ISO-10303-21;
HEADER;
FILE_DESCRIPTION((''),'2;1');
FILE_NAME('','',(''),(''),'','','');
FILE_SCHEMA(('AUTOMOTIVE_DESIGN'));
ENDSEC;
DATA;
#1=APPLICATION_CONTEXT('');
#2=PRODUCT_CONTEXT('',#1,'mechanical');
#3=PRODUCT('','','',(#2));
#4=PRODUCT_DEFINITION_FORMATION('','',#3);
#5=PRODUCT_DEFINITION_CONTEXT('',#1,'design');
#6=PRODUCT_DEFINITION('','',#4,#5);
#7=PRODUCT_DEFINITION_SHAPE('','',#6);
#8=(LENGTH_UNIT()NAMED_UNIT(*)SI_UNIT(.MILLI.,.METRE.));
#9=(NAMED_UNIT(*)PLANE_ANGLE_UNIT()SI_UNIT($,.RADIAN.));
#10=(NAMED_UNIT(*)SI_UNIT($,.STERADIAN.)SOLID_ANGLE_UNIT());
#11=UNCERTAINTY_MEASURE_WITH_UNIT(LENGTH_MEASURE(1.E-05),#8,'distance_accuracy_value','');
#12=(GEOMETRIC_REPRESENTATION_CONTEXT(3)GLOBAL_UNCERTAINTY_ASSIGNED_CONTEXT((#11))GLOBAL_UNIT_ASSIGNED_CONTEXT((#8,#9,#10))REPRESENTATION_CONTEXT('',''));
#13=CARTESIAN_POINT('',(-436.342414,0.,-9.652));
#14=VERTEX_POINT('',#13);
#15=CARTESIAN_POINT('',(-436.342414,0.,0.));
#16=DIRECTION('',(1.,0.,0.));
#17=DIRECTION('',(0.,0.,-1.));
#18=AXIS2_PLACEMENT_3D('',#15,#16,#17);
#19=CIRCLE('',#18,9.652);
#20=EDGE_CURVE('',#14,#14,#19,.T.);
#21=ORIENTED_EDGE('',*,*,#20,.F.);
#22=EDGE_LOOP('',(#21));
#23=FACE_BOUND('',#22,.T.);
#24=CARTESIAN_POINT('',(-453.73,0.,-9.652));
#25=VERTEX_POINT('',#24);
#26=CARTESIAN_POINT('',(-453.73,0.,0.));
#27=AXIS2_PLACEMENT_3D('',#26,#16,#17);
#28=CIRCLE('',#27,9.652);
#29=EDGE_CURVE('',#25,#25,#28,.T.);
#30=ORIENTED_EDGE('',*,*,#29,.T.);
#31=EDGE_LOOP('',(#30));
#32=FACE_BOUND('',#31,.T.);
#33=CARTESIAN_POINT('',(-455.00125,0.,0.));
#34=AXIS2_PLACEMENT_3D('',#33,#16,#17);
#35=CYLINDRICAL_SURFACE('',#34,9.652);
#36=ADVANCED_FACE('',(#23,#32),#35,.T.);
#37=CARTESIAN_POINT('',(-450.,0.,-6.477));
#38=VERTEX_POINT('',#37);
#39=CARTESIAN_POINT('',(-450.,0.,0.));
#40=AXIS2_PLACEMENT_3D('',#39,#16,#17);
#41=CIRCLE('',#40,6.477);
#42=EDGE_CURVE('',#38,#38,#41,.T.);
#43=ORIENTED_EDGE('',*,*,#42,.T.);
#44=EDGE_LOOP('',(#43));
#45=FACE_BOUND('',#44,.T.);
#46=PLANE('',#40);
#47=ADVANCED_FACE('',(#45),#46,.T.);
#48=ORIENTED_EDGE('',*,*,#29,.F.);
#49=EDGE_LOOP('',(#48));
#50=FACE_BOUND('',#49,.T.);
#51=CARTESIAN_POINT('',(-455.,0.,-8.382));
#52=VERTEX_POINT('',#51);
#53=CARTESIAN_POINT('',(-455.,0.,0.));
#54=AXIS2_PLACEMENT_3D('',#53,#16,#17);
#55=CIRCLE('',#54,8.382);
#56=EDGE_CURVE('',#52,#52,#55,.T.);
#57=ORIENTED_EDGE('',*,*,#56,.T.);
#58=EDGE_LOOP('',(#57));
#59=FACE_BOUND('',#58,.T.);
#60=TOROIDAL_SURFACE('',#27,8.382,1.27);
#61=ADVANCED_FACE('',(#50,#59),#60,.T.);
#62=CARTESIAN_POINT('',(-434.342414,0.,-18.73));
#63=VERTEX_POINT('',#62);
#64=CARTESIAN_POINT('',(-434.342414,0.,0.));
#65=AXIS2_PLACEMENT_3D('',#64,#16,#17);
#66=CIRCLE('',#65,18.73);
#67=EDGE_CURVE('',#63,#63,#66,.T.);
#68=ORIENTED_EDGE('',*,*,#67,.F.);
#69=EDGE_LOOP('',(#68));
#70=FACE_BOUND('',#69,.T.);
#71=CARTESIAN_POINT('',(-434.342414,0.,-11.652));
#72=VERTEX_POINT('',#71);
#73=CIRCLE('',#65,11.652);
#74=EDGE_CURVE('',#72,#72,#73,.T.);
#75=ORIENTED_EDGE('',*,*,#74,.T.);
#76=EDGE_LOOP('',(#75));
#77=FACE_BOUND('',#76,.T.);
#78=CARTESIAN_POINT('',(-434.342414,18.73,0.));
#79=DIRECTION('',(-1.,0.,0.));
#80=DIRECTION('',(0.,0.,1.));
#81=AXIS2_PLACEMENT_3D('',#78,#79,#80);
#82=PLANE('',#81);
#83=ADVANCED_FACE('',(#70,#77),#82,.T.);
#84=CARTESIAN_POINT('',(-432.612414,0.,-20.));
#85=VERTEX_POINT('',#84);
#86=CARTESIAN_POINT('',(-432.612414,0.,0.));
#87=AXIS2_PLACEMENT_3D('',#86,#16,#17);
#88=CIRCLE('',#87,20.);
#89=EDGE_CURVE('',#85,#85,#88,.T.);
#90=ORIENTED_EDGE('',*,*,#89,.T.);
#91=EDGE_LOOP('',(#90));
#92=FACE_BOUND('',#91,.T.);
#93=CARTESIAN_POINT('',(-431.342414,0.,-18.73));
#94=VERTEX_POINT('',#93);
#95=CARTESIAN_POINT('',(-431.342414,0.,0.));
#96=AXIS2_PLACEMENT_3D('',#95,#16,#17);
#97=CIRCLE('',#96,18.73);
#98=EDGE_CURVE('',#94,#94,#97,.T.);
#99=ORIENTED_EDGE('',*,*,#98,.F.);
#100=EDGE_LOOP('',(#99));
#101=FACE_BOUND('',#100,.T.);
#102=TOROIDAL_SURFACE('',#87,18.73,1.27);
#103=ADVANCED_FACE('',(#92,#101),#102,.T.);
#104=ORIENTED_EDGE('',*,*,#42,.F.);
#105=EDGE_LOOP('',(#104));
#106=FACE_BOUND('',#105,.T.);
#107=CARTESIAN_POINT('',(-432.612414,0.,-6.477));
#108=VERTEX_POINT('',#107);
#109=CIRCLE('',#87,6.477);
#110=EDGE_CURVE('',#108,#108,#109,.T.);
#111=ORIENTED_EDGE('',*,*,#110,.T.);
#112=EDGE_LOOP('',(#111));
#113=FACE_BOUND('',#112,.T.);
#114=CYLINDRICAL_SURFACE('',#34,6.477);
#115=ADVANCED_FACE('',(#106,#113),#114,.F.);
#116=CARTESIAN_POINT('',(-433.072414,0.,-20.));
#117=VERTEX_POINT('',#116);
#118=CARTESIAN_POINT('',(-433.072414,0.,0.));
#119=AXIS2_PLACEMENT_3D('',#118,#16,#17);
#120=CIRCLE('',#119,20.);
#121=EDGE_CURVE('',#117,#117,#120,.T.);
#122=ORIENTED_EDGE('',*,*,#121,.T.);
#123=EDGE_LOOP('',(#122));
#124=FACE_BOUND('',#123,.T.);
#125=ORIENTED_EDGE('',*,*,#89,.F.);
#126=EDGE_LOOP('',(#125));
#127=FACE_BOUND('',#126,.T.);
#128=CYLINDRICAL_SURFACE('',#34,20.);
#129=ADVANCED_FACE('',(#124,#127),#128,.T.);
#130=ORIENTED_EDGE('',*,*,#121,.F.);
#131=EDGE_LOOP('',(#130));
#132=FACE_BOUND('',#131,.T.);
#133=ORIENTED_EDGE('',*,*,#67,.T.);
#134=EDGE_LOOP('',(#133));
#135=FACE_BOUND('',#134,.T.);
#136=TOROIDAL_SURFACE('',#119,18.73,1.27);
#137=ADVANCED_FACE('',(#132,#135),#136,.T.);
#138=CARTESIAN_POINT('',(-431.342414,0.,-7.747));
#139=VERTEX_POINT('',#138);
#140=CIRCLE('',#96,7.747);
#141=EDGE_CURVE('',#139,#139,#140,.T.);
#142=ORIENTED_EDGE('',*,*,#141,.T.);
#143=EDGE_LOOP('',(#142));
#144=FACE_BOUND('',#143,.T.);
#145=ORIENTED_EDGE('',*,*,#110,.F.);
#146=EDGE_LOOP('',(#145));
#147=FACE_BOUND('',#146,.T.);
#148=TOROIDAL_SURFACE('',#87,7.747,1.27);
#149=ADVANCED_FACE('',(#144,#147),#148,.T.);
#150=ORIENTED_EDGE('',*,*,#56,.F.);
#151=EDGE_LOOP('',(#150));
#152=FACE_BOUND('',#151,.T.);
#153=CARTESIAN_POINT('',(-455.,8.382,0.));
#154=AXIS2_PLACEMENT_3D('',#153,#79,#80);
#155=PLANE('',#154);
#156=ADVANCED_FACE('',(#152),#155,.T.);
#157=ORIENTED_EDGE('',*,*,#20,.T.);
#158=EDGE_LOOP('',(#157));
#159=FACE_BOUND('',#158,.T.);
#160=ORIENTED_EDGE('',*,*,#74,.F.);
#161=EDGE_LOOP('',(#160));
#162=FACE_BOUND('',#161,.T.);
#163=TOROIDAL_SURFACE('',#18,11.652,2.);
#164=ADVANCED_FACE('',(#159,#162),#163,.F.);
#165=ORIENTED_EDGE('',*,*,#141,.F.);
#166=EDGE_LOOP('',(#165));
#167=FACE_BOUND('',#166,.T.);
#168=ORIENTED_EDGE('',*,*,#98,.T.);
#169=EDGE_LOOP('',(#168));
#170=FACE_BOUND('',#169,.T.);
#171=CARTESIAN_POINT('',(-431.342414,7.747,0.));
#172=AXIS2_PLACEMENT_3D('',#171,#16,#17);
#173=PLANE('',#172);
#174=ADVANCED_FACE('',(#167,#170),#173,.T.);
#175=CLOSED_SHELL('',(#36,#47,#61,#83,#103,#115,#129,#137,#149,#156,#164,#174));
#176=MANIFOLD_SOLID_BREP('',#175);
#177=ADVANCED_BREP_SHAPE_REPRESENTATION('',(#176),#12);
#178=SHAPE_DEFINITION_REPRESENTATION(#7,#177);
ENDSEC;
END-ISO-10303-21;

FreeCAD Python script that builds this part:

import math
import FreeCAD as App
import Part
import Sketcher
Q = App.Units.Quantity

doc = App.newDocument("Part")
body = doc.addObject("PartDesign::Body", "Body")

# Sketch on XY plane
sketch1 = body.newObject("Sketcher::SketchObject", "Sketch")
sketch1.AttachmentSupport = (doc.getObject("XY_Plane"), [""])
sketch1.MapMode = "FlatFace"
sketch1.addGeometry(Part.LineSegment(App.Vector(-455, 8.382, 0), App.Vector(-455, 0, 0)), False)
sketch1.addGeometry(Part.LineSegment(App.Vector(-455, 0, 0), App.Vector(-450, 0, 0)), False)
sketch1.addGeometry(Part.LineSegment(App.Vector(-450, 0, 0), App.Vector(-450, 6.477, 0)), False)
sketch1.addGeometry(Part.LineSegment(App.Vector(-450, 6.477, 0), App.Vector(-432.612414, 6.477, 0)), False)
sketch1.addGeometry(Part.ArcOfCircle(Part.Circle(App.Vector(-432.612414, 7.747, 0), App.Vector(0, 0, 1), 1.27), math.radians(-90), math.radians(0)), False)
sketch1.addGeometry(Part.LineSegment(App.Vector(-431.342414, 7.747, 0), App.Vector(-431.342414, 18.73, 0)), False)
sketch1.addGeometry(Part.ArcOfCircle(Part.Circle(App.Vector(-432.612414, 18.73, 0), App.Vector(0, 0, 1), 1.27), math.radians(0), math.radians(90)), False)
sketch1.addGeometry(Part.LineSegment(App.Vector(-432.612414, 20, 0), App.Vector(-433.072414, 20, 0)), False)
sketch1.addGeometry(Part.ArcOfCircle(Part.Circle(App.Vector(-433.072414, 18.73, 0), App.Vector(0, 0, 1), 1.27), math.radians(90), math.radians(180)), False)
sketch1.addGeometry(Part.LineSegment(App.Vector(-434.342414, 18.73, 0), App.Vector(-434.342414, 11.652, 0)), False)
sketch1.addGeometry(Part.ArcOfCircle(Part.Circle(App.Vector(-436.342414, 11.652, 0), App.Vector(0, 0, 1), 2), math.radians(-90), math.radians(0)), False)
sketch1.addGeometry(Part.LineSegment(App.Vector(-436.342414, 9.652, 0), App.Vector(-453.73, 9.652, 0)), False)
sketch1.addGeometry(Part.ArcOfCircle(Part.Circle(App.Vector(-453.73, 8.382, 0), App.Vector(0, 0, 1), 1.27), math.radians(90), math.radians(180)), False)
sketch1.addConstraint(Sketcher.Constraint("Coincident", 0, 2, 1, 1))
sketch1.addConstraint(Sketcher.Constraint("Coincident", 1, 2, 2, 1))
sketch1.addConstraint(Sketcher.Constraint("Coincident", 2, 2, 3, 1))
sketch1.addConstraint(Sketcher.Constraint("Tangent", 3, 2, 4, 1))
sketch1.addConstraint(Sketcher.Constraint("Tangent", 4, 2, 5, 1))
sketch1.addConstraint(Sketcher.Constraint("Tangent", 5, 2, 6, 1))
sketch1.addConstraint(Sketcher.Constraint("Tangent", 6, 2, 7, 1))
sketch1.addConstraint(Sketcher.Constraint("Tangent", 7, 2, 8, 1))
sketch1.addConstraint(Sketcher.Constraint("Tangent", 8, 2, 9, 1))
sketch1.addConstraint(Sketcher.Constraint("Tangent", 9, 2, 10, 2))
sketch1.addConstraint(Sketcher.Constraint("Tangent", 10, 1, 11, 1))
sketch1.addConstraint(Sketcher.Constraint("Tangent", 11, 2, 12, 1))
sketch1.addConstraint(Sketcher.Constraint("Tangent", 12, 2, 0, 1))
sketch1.addConstraint(Sketcher.Constraint("Vertical", 0))
sketch1.addConstraint(Sketcher.Constraint("Horizontal", 1))
sketch1.addConstraint(Sketcher.Constraint("Vertical", 2))
sketch1.addConstraint(Sketcher.Constraint("Horizontal", 3))
sketch1.addConstraint(Sketcher.Constraint("Vertical", 5))
sketch1.addConstraint(Sketcher.Constraint("Horizontal", 7))
sketch1.addConstraint(Sketcher.Constraint("Vertical", 9))
sketch1.addConstraint(Sketcher.Constraint("Horizontal", 11))
sketch1.addConstraint(Sketcher.Constraint("Equal", 4, 6))
sketch1.addConstraint(Sketcher.Constraint("Equal", 6, 8))
sketch1.addConstraint(Sketcher.Constraint("Equal", 8, 12))
sketch1.addConstraint(Sketcher.Constraint("PointOnObject", 0, 2, -1))
sketch1.addConstraint(Sketcher.Constraint("Equal", 3, 11))
sketch1.addConstraint(Sketcher.Constraint("Radius", 4, Q("0.05 in")))
sketch1.addConstraint(Sketcher.Constraint("DistanceY", 0, 2, 0, 1, Q("0.33 in")))
sketch1.addConstraint(Sketcher.Constraint("DistanceY", 2, 1, 2, 2, Q("0.255 in")))
sketch1.addConstraint(Sketcher.Constraint("Radius", 10, 2.0))
sketch1.addConstraint(Sketcher.Constraint("DistanceX", 1, 1, 1, 2, 5.0))
sketch1.addConstraint(Sketcher.Constraint("DistanceY", 5, 1, 5, 2, 10.983))
sketch1.addConstraint(Sketcher.Constraint("DistanceX", 12, 3, -1, 1, 453.73))
sketch1.addConstraint(Sketcher.Constraint("DistanceX", 3, 1, 3, 2, 17.387586))
revolution = body.newObject("PartDesign::Revolution", "Revolution")
revolution.Profile = sketch1
revolution.ReferenceAxis = (sketch1, ["H_Axis"])
revolution.Angle = 360

doc.recompute()
